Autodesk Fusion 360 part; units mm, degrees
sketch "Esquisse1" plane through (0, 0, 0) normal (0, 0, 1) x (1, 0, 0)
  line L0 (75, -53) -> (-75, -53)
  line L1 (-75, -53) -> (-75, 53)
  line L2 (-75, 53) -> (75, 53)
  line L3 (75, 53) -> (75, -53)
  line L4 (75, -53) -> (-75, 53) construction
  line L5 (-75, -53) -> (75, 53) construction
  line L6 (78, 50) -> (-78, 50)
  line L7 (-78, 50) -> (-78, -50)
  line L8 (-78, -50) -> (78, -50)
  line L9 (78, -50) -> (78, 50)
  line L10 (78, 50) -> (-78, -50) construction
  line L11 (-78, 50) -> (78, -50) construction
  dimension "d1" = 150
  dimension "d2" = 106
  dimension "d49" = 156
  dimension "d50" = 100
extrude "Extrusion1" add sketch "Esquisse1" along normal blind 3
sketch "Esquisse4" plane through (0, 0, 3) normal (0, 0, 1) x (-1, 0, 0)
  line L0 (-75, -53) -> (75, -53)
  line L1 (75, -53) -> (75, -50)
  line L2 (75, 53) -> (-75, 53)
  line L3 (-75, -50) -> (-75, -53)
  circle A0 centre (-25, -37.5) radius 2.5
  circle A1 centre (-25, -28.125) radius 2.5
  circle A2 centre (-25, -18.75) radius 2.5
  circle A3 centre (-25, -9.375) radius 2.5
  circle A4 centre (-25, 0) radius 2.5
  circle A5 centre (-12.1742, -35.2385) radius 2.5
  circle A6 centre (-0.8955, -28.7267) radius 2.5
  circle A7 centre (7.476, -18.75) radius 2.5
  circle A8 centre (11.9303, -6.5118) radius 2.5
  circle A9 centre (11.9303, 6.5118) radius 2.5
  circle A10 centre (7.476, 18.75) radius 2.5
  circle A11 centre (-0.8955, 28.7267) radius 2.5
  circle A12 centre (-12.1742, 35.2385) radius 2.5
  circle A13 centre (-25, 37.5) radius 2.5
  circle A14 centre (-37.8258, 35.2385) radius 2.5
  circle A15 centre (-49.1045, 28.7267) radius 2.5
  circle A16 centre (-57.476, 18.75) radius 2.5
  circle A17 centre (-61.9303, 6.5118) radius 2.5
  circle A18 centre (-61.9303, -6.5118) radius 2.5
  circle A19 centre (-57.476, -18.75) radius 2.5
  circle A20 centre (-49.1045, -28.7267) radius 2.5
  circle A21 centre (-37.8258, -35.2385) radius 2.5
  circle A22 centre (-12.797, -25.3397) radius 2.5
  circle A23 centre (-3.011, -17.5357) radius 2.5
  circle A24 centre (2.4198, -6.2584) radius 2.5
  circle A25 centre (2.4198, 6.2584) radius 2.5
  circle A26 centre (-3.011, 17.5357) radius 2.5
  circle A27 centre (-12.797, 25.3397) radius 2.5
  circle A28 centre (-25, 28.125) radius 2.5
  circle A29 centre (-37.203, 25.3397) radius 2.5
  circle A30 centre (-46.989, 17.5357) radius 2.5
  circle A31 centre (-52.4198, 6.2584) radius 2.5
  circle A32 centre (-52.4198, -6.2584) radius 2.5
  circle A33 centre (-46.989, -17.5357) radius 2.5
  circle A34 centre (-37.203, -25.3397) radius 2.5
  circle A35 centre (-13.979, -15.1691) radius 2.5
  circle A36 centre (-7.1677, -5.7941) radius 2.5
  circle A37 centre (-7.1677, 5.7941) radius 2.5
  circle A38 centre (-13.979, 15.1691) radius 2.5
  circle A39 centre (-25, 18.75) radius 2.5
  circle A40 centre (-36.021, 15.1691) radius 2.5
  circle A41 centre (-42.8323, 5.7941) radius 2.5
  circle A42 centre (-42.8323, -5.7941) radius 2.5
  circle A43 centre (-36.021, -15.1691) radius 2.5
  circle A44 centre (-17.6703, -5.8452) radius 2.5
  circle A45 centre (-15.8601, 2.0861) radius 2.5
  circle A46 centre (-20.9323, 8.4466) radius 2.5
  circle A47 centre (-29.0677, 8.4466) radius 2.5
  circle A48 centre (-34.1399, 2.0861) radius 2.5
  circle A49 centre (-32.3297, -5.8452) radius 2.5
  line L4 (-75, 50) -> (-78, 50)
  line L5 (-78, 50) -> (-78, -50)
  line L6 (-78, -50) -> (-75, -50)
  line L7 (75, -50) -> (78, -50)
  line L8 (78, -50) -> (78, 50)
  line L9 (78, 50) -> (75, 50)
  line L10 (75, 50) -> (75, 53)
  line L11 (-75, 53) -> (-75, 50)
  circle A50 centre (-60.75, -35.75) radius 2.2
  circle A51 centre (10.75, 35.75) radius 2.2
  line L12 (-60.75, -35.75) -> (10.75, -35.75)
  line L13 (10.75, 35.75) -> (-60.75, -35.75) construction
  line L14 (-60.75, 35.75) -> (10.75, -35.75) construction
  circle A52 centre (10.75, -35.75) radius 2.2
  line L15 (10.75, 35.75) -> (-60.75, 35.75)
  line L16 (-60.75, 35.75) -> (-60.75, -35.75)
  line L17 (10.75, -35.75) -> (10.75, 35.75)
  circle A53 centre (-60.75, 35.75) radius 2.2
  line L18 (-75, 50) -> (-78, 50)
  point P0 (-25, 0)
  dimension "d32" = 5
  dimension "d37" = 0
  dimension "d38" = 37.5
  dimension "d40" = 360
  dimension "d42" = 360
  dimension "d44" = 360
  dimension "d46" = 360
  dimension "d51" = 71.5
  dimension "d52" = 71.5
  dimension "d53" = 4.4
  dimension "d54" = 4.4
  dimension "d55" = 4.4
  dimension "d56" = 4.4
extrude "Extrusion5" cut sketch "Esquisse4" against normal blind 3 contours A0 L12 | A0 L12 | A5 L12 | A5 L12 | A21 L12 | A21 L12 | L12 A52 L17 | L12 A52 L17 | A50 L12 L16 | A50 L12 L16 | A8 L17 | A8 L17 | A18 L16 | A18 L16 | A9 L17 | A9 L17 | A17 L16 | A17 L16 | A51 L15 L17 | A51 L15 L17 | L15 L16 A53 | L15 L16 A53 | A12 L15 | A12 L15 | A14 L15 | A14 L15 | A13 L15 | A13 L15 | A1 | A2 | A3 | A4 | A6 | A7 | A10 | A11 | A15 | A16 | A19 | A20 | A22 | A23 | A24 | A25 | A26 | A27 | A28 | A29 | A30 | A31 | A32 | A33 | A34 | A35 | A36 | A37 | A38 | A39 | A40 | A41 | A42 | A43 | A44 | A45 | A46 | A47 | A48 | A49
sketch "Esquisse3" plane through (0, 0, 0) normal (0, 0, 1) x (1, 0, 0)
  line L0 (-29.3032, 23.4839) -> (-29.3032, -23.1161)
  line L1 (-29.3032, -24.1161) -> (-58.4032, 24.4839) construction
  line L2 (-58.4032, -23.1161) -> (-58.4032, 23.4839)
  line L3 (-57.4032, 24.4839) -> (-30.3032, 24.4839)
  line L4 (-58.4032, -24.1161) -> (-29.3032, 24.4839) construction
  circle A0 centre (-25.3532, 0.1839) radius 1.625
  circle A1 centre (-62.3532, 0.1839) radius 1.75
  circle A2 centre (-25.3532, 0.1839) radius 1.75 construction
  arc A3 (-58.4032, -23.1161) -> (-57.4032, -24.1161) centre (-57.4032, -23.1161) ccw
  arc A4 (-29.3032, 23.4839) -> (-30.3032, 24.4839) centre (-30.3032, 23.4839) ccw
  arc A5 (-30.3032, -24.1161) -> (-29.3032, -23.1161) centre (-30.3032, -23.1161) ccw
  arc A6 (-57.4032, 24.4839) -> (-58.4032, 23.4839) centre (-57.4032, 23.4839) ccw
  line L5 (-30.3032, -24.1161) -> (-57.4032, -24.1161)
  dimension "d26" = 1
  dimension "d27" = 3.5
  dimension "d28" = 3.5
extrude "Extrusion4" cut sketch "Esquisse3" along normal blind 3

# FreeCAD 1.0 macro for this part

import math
import FreeCAD as App
import Part
import Sketcher
Q = App.Units.Quantity

doc = App.newDocument("Part")
body = doc.addObject("PartDesign::Body", "Body")

sketch1 = doc.addObject("Sketcher::SketchObject", "Sketch")
body.addObject(sketch1)
sketch1.AttachmentSupport = (doc.XY_Plane, [""])
sketch1.MapMode = "FlatFace"
sketch1.addGeometry(Part.LineSegment(App.Vector(-75, -53, 0), App.Vector(75, -53, 0)), False)
sketch1.addGeometry(Part.LineSegment(App.Vector(75, -53, 0), App.Vector(75, -50, 0)), False)
sketch1.addGeometry(Part.LineSegment(App.Vector(75, -50, 0), App.Vector(78, -50, 0)), False)
sketch1.addGeometry(Part.LineSegment(App.Vector(78, -50, 0), App.Vector(78, 50, 0)), False)
sketch1.addGeometry(Part.LineSegment(App.Vector(78, 50, 0), App.Vector(75, 50, 0)), False)
sketch1.addGeometry(Part.LineSegment(App.Vector(75, 50, 0), App.Vector(75, 53, 0)), False)
sketch1.addGeometry(Part.LineSegment(App.Vector(75, 53, 0), App.Vector(-75, 53, 0)), False)
sketch1.addGeometry(Part.LineSegment(App.Vector(-75, 53, 0), App.Vector(-75, 50, 0)), False)
sketch1.addGeometry(Part.LineSegment(App.Vector(-75, 50, 0), App.Vector(-78, 50, 0)), False)
sketch1.addGeometry(Part.LineSegment(App.Vector(-78, 50, 0), App.Vector(-78, -50, 0)), False)
sketch1.addGeometry(Part.LineSegment(App.Vector(-78, -50, 0), App.Vector(-75, -50, 0)), False)
sketch1.addGeometry(Part.LineSegment(App.Vector(-75, -50, 0), App.Vector(-75, -53, 0)), False)
sketch1.addConstraint(Sketcher.Constraint("Coincident", 0, 2, 1, 1))
sketch1.addConstraint(Sketcher.Constraint("Coincident", 1, 2, 2, 1))
sketch1.addConstraint(Sketcher.Constraint("Coincident", 2, 2, 3, 1))
sketch1.addConstraint(Sketcher.Constraint("Coincident", 3, 2, 4, 1))
sketch1.addConstraint(Sketcher.Constraint("Coincident", 4, 2, 5, 1))
sketch1.addConstraint(Sketcher.Constraint("Coincident", 5, 2, 6, 1))
sketch1.addConstraint(Sketcher.Constraint("Coincident", 6, 2, 7, 1))
sketch1.addConstraint(Sketcher.Constraint("Coincident", 7, 2, 8, 1))
sketch1.addConstraint(Sketcher.Constraint("Coincident", 8, 2, 9, 1))
sketch1.addConstraint(Sketcher.Constraint("Coincident", 9, 2, 10, 1))
sketch1.addConstraint(Sketcher.Constraint("Coincident", 10, 2, 11, 1))
sketch1.addConstraint(Sketcher.Constraint("Coincident", 11, 2, 0, 1))
sketch1.addConstraint(Sketcher.Constraint("Horizontal", 0))
sketch1.addConstraint(Sketcher.Constraint("Vertical", 1))
sketch1.addConstraint(Sketcher.Constraint("Horizontal", 2))
sketch1.addConstraint(Sketcher.Constraint("Vertical", 3))
sketch1.addConstraint(Sketcher.Constraint("Horizontal", 4))
sketch1.addConstraint(Sketcher.Constraint("Vertical", 5))
sketch1.addConstraint(Sketcher.Constraint("Horizontal", 6))
sketch1.addConstraint(Sketcher.Constraint("Vertical", 7))
sketch1.addConstraint(Sketcher.Constraint("Horizontal", 8))
sketch1.addConstraint(Sketcher.Constraint("Vertical", 9))
sketch1.addConstraint(Sketcher.Constraint("Horizontal", 10))
sketch1.addConstraint(Sketcher.Constraint("Vertical", 11))
sketch1.addConstraint(Sketcher.Constraint("Symmetric", 0, 2, 6, 2, -1, 1))
sketch1.addConstraint(Sketcher.Constraint("Symmetric", 2, 2, 8, 2, -1, 1))
sketch1.addConstraint(Sketcher.Constraint("Symmetric", 4, 2, 10, 2, -1, 1))
sketch1.addConstraint(Sketcher.Constraint("Symmetric", 4, 2, 7, 2, -2))
sketch1.addConstraint(Sketcher.Constraint("Equal", 10, 1))
sketch1.addConstraint(Sketcher.Constraint("DistanceX", 0, 1, 0, 2, Q("150 mm")))
sketch1.addConstraint(Sketcher.Constraint("DistanceY", 3, 1, 3, 2, Q("100 mm")))
sketch1.addConstraint(Sketcher.Constraint("DistanceY", 0, 2, 5, 2, Q("106 mm")))
pad1 = doc.addObject("PartDesign::Pad", "Pad")
body.addObject(pad1)
pad1.Profile = sketch1
pad1.Length = 3

sketch2 = doc.addObject("Sketcher::SketchObject", "Sketch001")
body.addObject(sketch2)
sketch2.AttachmentSupport = (doc.XY_Plane, [""])
sketch2.MapMode = "FlatFace"
sketch2.AttachmentOffset = App.Placement(App.Vector(0, 0, 3), App.Rotation())
sketch2.addGeometry(Part.Circle(App.Vector(25, 37.5, 0), App.Vector(0, 0, 1), 2.5), False)
sketch2.addGeometry(Part.Circle(App.Vector(12.2, 35.2, 0), App.Vector(0, 0, 1), 2.5), False)
sketch2.addGeometry(Part.Circle(App.Vector(37.8, 35.2, 0), App.Vector(0, 0, 1), 2.5), False)
sketch2.addGeometry(Part.Circle(App.Vector(-10.8, 35.8, 0), App.Vector(0, 0, 1), 2.2), False)
sketch2.addGeometry(Part.Circle(App.Vector(60.8, 35.8, 0), App.Vector(0, 0, 1), 2.2), False)
sketch2.addGeometry(Part.Circle(App.Vector(-11.9, 6.5, 0), App.Vector(0, 0, 1), 2.5), False)
sketch2.addGeometry(Part.Circle(App.Vector(61.9, 6.5, 0), App.Vector(0, 0, 1), 2.5), False)
sketch2.addGeometry(Part.Circle(App.Vector(-11.9, -6.5, 0), App.Vector(0, 0, 1), 2.5), False)
sketch2.addGeometry(Part.Circle(App.Vector(61.9, -6.5, 0), App.Vector(0, 0, 1), 2.5), False)
sketch2.addGeometry(Part.Circle(App.Vector(-10.8, -35.8, 0), App.Vector(0, 0, 1), 2.2), False)
sketch2.addGeometry(Part.Circle(App.Vector(60.8, -35.8, 0), App.Vector(0, 0, 1), 2.2), False)
sketch2.addGeometry(Part.Circle(App.Vector(12.2, -35.2, 0), App.Vector(0, 0, 1), 2.5), False)
sketch2.addGeometry(Part.Circle(App.Vector(37.8, -35.2, 0), App.Vector(0, 0, 1), 2.5), False)
sketch2.addGeometry(Part.Circle(App.Vector(25, -37.5, 0), App.Vector(0, 0, 1), 2.5), False)
sketch2.addGeometry(Part.Circle(App.Vector(25, 28.1, 0), App.Vector(0, 0, 1), 2.5), False)
sketch2.addGeometry(Part.Circle(App.Vector(25, 18.8, 0), App.Vector(0, 0, 1), 2.5), False)
sketch2.addGeometry(Part.Circle(App.Vector(25, 9.4, 0), App.Vector(0, 0, 1), 2.5), False)
sketch2.addGeometry(Part.Circle(App.Vector(25, 0, 0), App.Vector(0, 0, 1), 2.5), False)
sketch2.addGeometry(Part.Circle(App.Vector(0.9, 28.7, 0), App.Vector(0, 0, 1), 2.5), False)
sketch2.addGeometry(Part.Circle(App.Vector(-7.5, 18.8, 0), App.Vector(0, 0, 1), 2.5), False)
sketch2.addGeometry(Part.Circle(App.Vector(-7.5, -18.8, 0), App.Vector(0, 0, 1), 2.5), False)
sketch2.addGeometry(Part.Circle(App.Vector(0.9, -28.7, 0), App.Vector(0, 0, 1), 2.5), False)
sketch2.addGeometry(Part.Circle(App.Vector(49.1, -28.7, 0), App.Vector(0, 0, 1), 2.5), False)
sketch2.addGeometry(Part.Circle(App.Vector(57.5, -18.8, 0), App.Vector(0, 0, 1), 2.5), False)
sketch2.addGeometry(Part.Circle(App.Vector(57.5, 18.8, 0), App.Vector(0, 0, 1), 2.5), False)
sketch2.addGeometry(Part.Circle(App.Vector(49.1, 28.7, 0), App.Vector(0, 0, 1), 2.5), False)
sketch2.addGeometry(Part.Circle(App.Vector(12.8, 25.3, 0), App.Vector(0, 0, 1), 2.5), False)
sketch2.addGeometry(Part.Circle(App.Vector(3, 17.5, 0), App.Vector(0, 0, 1), 2.5), False)
sketch2.addGeometry(Part.Circle(App.Vector(-2.4, 6.3, 0), App.Vector(0, 0, 1), 2.5), False)
sketch2.addGeometry(Part.Circle(App.Vector(-2.4, -6.3, 0), App.Vector(0, 0, 1), 2.5), False)
sketch2.addGeometry(Part.Circle(App.Vector(3, -17.5, 0), App.Vector(0, 0, 1), 2.5), False)
sketch2.addGeometry(Part.Circle(App.Vector(12.8, -25.3, 0), App.Vector(0, 0, 1), 2.5), False)
sketch2.addGeometry(Part.Circle(App.Vector(25, -28.1, 0), App.Vector(0, 0, 1), 2.5), False)
sketch2.addGeometry(Part.Circle(App.Vector(37.2, -25.3, 0), App.Vector(0, 0, 1), 2.5), False)
sketch2.addGeometry(Part.Circle(App.Vector(47, -17.5, 0), App.Vector(0, 0, 1), 2.5), False)
sketch2.addGeometry(Part.Circle(App.Vector(52.4, -6.3, 0), App.Vector(0, 0, 1), 2.5), False)
sketch2.addGeometry(Part.Circle(App.Vector(52.4, 6.3, 0), App.Vector(0, 0, 1), 2.5), False)
sketch2.addGeometry(Part.Circle(App.Vector(47, 17.5, 0), App.Vector(0, 0, 1), 2.5), False)
sketch2.addGeometry(Part.Circle(App.Vector(37.2, 25.3, 0), App.Vector(0, 0, 1), 2.5), False)
sketch2.addGeometry(Part.Circle(App.Vector(14, 15.2, 0), App.Vector(0, 0, 1), 2.5), False)
sketch2.addGeometry(Part.Circle(App.Vector(7.2, 5.8, 0), App.Vector(0, 0, 1), 2.5), False)
sketch2.addGeometry(Part.Circle(App.Vector(7.2, -5.8, 0), App.Vector(0, 0, 1), 2.5), False)
sketch2.addGeometry(Part.Circle(App.Vector(14, -15.2, 0), App.Vector(0, 0, 1), 2.5), False)
sketch2.addGeometry(Part.Circle(App.Vector(25, -18.8, 0), App.Vector(0, 0, 1), 2.5), False)
sketch2.addGeometry(Part.Circle(App.Vector(36, -15.2, 0), App.Vector(0, 0, 1), 2.5), False)
sketch2.addGeometry(Part.Circle(App.Vector(42.8, -5.8, 0), App.Vector(0, 0, 1), 2.5), False)
sketch2.addGeometry(Part.Circle(App.Vector(42.8, 5.8, 0), App.Vector(0, 0, 1), 2.5), False)
sketch2.addGeometry(Part.Circle(App.Vector(36, 15.2, 0), App.Vector(0, 0, 1), 2.5), False)
sketch2.addGeometry(Part.Circle(App.Vector(17.7, 5.8, 0), App.Vector(0, 0, 1), 2.5), False)
sketch2.addGeometry(Part.Circle(App.Vector(15.9, -2.1, 0), App.Vector(0, 0, 1), 2.5), False)
sketch2.addGeometry(Part.Circle(App.Vector(20.9, -8.4, 0), App.Vector(0, 0, 1), 2.5), False)
sketch2.addGeometry(Part.Circle(App.Vector(29.1, -8.4, 0), App.Vector(0, 0, 1), 2.5), False)
sketch2.addGeometry(Part.Circle(App.Vector(34.1, -2.1, 0), App.Vector(0, 0, 1), 2.5), False)
sketch2.addGeometry(Part.Circle(App.Vector(32.3, 5.8, 0), App.Vector(0, 0, 1), 2.5), False)
sketch2.addConstraint(Sketcher.Constraint("Equal", 0, 1))
sketch2.addConstraint(Sketcher.Constraint("Equal", 1, 2))
sketch2.addConstraint(Sketcher.Constraint("Equal", 3, 4))
sketch2.addConstraint(Sketcher.Constraint("Equal", 2, 5))
sketch2.addConstraint(Sketcher.Constraint("Equal", 5, 6))
sketch2.addConstraint(Sketcher.Constraint("Equal", 6, 7))
sketch2.addConstraint(Sketcher.Constraint("Equal", 7, 8))
sketch2.addConstraint(Sketcher.Constraint("Equal", 4, 9))
sketch2.addConstraint(Sketcher.Constraint("Equal", 9, 10))
sketch2.addConstraint(Sketcher.Constraint("Equal", 8, 11))
sketch2.addConstraint(Sketcher.Constraint("Equal", 11, 12))
sketch2.addConstraint(Sketcher.Constraint("Equal", 12, 13))
sketch2.addConstraint(Sketcher.Constraint("Equal", 13, 14))
sketch2.addConstraint(Sketcher.Constraint("Equal", 14, 15))
sketch2.addConstraint(Sketcher.Constraint("Equal", 15, 16))
sketch2.addConstraint(Sketcher.Constraint("Equal", 16, 17))
sketch2.addConstraint(Sketcher.Constraint("Equal", 17, 18))
sketch2.addConstraint(Sketcher.Constraint("Equal", 18, 19))
sketch2.addConstraint(Sketcher.Constraint("Equal", 19, 20))
sketch2.addConstraint(Sketcher.Constraint("Equal", 20, 21))
sketch2.addConstraint(Sketcher.Constraint("Equal", 21, 22))
sketch2.addConstraint(Sketcher.Constraint("Equal", 22, 23))
sketch2.addConstraint(Sketcher.Constraint("Equal", 23, 24))
sketch2.addConstraint(Sketcher.Constraint("Equal", 24, 25))
sketch2.addConstraint(Sketcher.Constraint("Equal", 25, 26))
sketch2.addConstraint(Sketcher.Constraint("Equal", 26, 27))
sketch2.addConstraint(Sketcher.Constraint("Equal", 27, 28))
sketch2.addConstraint(Sketcher.Constraint("Equal", 28, 29))
sketch2.addConstraint(Sketcher.Constraint("Equal", 29, 30))
sketch2.addConstraint(Sketcher.Constraint("Equal", 30, 31))
sketch2.addConstraint(Sketcher.Constraint("Equal", 31, 32))
sketch2.addConstraint(Sketcher.Constraint("Equal", 32, 33))
sketch2.addConstraint(Sketcher.Constraint("Equal", 33, 34))
sketch2.addConstraint(Sketcher.Constraint("Equal", 34, 35))
sketch2.addConstraint(Sketcher.Constraint("Equal", 35, 36))
sketch2.addConstraint(Sketcher.Constraint("Equal", 36, 37))
sketch2.addConstraint(Sketcher.Constraint("Equal", 37, 38))
sketch2.addConstraint(Sketcher.Constraint("Equal", 38, 39))
sketch2.addConstraint(Sketcher.Constraint("Equal", 39, 40))
sketch2.addConstraint(Sketcher.Constraint("Equal", 40, 41))
sketch2.addConstraint(Sketcher.Constraint("Equal", 41, 42))
sketch2.addConstraint(Sketcher.Constraint("Equal", 42, 43))
sketch2.addConstraint(Sketcher.Constraint("Equal", 43, 44))
sketch2.addConstraint(Sketcher.Constraint("Equal", 44, 45))
sketch2.addConstraint(Sketcher.Constraint("Equal", 45, 46))
sketch2.addConstraint(Sketcher.Constraint("Equal", 46, 47))
sketch2.addConstraint(Sketcher.Constraint("Equal", 47, 48))
sketch2.addConstraint(Sketcher.Constraint("Equal", 48, 49))
sketch2.addConstraint(Sketcher.Constraint("Equal", 49, 50))
sketch2.addConstraint(Sketcher.Constraint("Equal", 50, 51))
sketch2.addConstraint(Sketcher.Constraint("Equal", 51, 52))
sketch2.addConstraint(Sketcher.Constraint("Equal", 52, 53))
sketch2.addConstraint(Sketcher.Constraint("Symmetric", 5, 3, 7, 3, -1))
sketch2.addConstraint(Sketcher.Constraint("Symmetric", 6, 3, 8, 3, -1))
sketch2.addConstraint(Sketcher.Constraint("Symmetric", 3, 3, 9, 3, -1))
sketch2.addConstraint(Sketcher.Constraint("Symmetric", 4, 3, 10, 3, -1))
sketch2.addConstraint(Sketcher.Constraint("Symmetric", 1, 3, 11, 3, -1))
sketch2.addConstraint(Sketcher.Constraint("Symmetric", 2, 3, 12, 3, -1))
sketch2.addConstraint(Sketcher.Constraint("Symmetric", 0, 3, 13, 3, -1))
sketch2.addConstraint(Sketcher.Constraint("Symmetric", 19, 3, 20, 3, -1))
sketch2.addConstraint(Sketcher.Constraint("Symmetric", 18, 3, 21, 3, -1))
sketch2.addConstraint(Sketcher.Constraint("Symmetric", 23, 3, 24, 3, -1))
sketch2.addConstraint(Sketcher.Constraint("Symmetric", 22, 3, 25, 3, -1))
sketch2.addConstraint(Sketcher.Constraint("Symmetric", 28, 3, 29, 3, -1))
sketch2.addConstraint(Sketcher.Constraint("Symmetric", 27, 3, 30, 3, -1))
sketch2.addConstraint(Sketcher.Constraint("Symmetric", 26, 3, 31, 3, -1))
sketch2.addConstraint(Sketcher.Constraint("Symmetric", 14, 3, 32, 3, -1))
sketch2.addConstraint(Sketcher.Constraint("Symmetric", 35, 3, 36, 3, -1))
sketch2.addConstraint(Sketcher.Constraint("Symmetric", 34, 3, 37, 3, -1))
sketch2.addConstraint(Sketcher.Constraint("Symmetric", 33, 3, 38, 3, -1))
sketch2.addConstraint(Sketcher.Constraint("Symmetric", 40, 3, 41, 3, -1))
sketch2.addConstraint(Sketcher.Constraint("Symmetric", 39, 3, 42, 3, -1))
sketch2.addConstraint(Sketcher.Constraint("Symmetric", 15, 3, 43, 3, -1))
sketch2.addConstraint(Sketcher.Constraint("Symmetric", 45, 3, 46, 3, -1))
sketch2.addConstraint(Sketcher.Constraint("Symmetric", 44, 3, 47, 3, -1))
sketch2.addConstraint(Sketcher.Constraint("PointOnObject", 17, 3, -1))
sketch2.addConstraint(Sketcher.Constraint("Horizontal", 1, 3, 2, 3))
sketch2.addConstraint(Sketcher.Constraint("Horizontal", 3, 3, 4, 3))
sketch2.addConstraint(Sketcher.Constraint("Horizontal", 5, 3, 6, 3))
sketch2.addConstraint(Sketcher.Constraint("Horizontal", 15, 3, 19, 3))
sketch2.addConstraint(Sketcher.Constraint("Horizontal", 21, 3, 22, 3))
sketch2.addConstraint(Sketcher.Constraint("Horizontal", 20, 3, 23, 3))
sketch2.addConstraint(Sketcher.Constraint("Horizontal", 31, 3, 33, 3))
sketch2.addConstraint(Sketcher.Constraint("Horizontal", 30, 3, 34, 3))
sketch2.addConstraint(Sketcher.Constraint("Horizontal", 29, 3, 35, 3))
sketch2.addConstraint(Sketcher.Constraint("Horizontal", 42, 3, 44, 3))
sketch2.addConstraint(Sketcher.Constraint("Horizontal", 41, 3, 45, 3))
sketch2.addConstraint(Sketcher.Constraint("Horizontal", 50, 3, 51, 3))
sketch2.addConstraint(Sketcher.Constraint("Horizontal", 49, 3, 52, 3))
sketch2.addConstraint(Sketcher.Constraint("Horizontal", 48, 3, 53, 3))
sketch2.addConstraint(Sketcher.Constraint("Vertical", 13, 3, 14, 3))
sketch2.addConstraint(Sketcher.Constraint("Vertical", 14, 3, 15, 3))
sketch2.addConstraint(Sketcher.Constraint("Vertical", 15, 3, 16, 3))
sketch2.addConstraint(Sketcher.Constraint("Vertical", 16, 3, 17, 3))
sketch2.addConstraint(Sketcher.Constraint("Diameter", 0, Q("5 mm")))
sketch2.addConstraint(Sketcher.Constraint("Diameter", 3, Q("4.4 mm")))
sketch2.addConstraint(Sketcher.Constraint("DistanceY", -1, 1, 0, 3, Q("37.5 mm")))
sketch2.addConstraint(Sketcher.Constraint("DistanceX", 3, 3, 4, 3, Q("71.5 mm")))
sketch2.addConstraint(Sketcher.Constraint("DistanceY", 9, 3, 3, 3, Q("71.5 mm")))
sketch2.addConstraint(Sketcher.Constraint("DistanceY", 20, 3, 19, 3, Q("37.5 mm")))
sketch2.addConstraint(Sketcher.Constraint("DistanceX", -1, 1, 0, 3, Q("25 mm")))
sketch2.addConstraint(Sketcher.Constraint("DistanceX", 3, 3, -1, 1, Q("10.75 mm")))
sketch2.addConstraint(Sketcher.Constraint("DistanceX", -1, 1, 49, 3, Q("15.86 mm")))
sketch2.addConstraint(Sketcher.Constraint("DistanceX", -1, 1, 52, 3, Q("34.14 mm")))
sketch2.addConstraint(Sketcher.Constraint("DistanceY", 16, 3, 14, 3, Q("18.75 mm")))
sketch2.addConstraint(Sketcher.Constraint("DistanceY", -1, 1, 14, 3, Q("28.125 mm")))
sketch2.addConstraint(Sketcher.Constraint("DistanceX", 19, 3, -1, 1, Q("7.476 mm")))
sketch2.addConstraint(Sketcher.Constraint("DistanceX", -1, 1, 23, 3, Q("57.476 mm")))
sketch2.addConstraint(Sketcher.Constraint("DistanceX", -1, 1, 26, 3, Q("12.797 mm")))
sketch2.addConstraint(Sketcher.Constraint("DistanceX", -1, 1, 27, 3, Q("3.011 mm")))
sketch2.addConstraint(Sketcher.Constraint("DistanceX", -1, 1, 33, 3, Q("37.203 mm")))
sketch2.addConstraint(Sketcher.Constraint("DistanceX", -1, 1, 34, 3, Q("46.989 mm")))
sketch2.addConstraint(Sketcher.Constraint("DistanceX", -1, 1, 39, 3, Q("13.979 mm")))
sketch2.addConstraint(Sketcher.Constraint("DistanceY", -1, 1, 39, 3, Q("15.169 mm")))
sketch2.addConstraint(Sketcher.Constraint("DistanceY", -1, 1, 40, 3, Q("5.794 mm")))
sketch2.addConstraint(Sketcher.Constraint("DistanceX", -1, 1, 44, 3, Q("36.021 mm")))
sketch2.addConstraint(Sketcher.Constraint("DistanceY", 49, 3, -1, 1, Q("2.086 mm")))
sketch2.addConstraint(Sketcher.Constraint("DistanceX", 5, 3, 2, 3, Q("49.756 mm")))
sketch2.addConstraint(Sketcher.Constraint("DistanceX", 1, 3, 6, 3, Q("49.756 mm")))
sketch2.addConstraint(Sketcher.Constraint("DistanceY", 5, 3, 18, 3, Q("22.215 mm")))
sketch2.addConstraint(Sketcher.Constraint("DistanceY", 26, 3, 18, 3, Q("3.387 mm")))
sketch2.addConstraint(Sketcher.Constraint("DistanceY", 27, 3, 18, 3, Q("11.191 mm")))
sketch2.addConstraint(Sketcher.Constraint("DistanceY", 48, 3, 39, 3, Q("9.324 mm")))
sketch2.addConstraint(Sketcher.Constraint("DistanceX", -1, 1, 1, 3, Q("12.1742 mm")))
sketch2.addConstraint(Sketcher.Constraint("DistanceY", -1, 1, 1, 3, Q("35.2385 mm")))
sketch2.addConstraint(Sketcher.Constraint("DistanceX", -1, 1, 2, 3, Q("37.8258 mm")))
sketch2.addConstraint(Sketcher.Constraint("DistanceY", -1, 1, 5, 3, Q("6.5118 mm")))
sketch2.addConstraint(Sketcher.Constraint("DistanceX", -1, 1, 18, 3, Q("0.8955 mm")))
sketch2.addConstraint(Sketcher.Constraint("DistanceX", -1, 1, 22, 3, Q("49.1045 mm")))
sketch2.addConstraint(Sketcher.Constraint("DistanceX", 28, 3, -1, 1, Q("2.4198 mm")))
sketch2.addConstraint(Sketcher.Constraint("DistanceY", -1, 1, 28, 3, Q("6.2584 mm")))
sketch2.addConstraint(Sketcher.Constraint("DistanceX", -1, 1, 35, 3, Q("52.4198 mm")))
sketch2.addConstraint(Sketcher.Constraint("DistanceX", -1, 1, 40, 3, Q("7.1677 mm")))
sketch2.addConstraint(Sketcher.Constraint("DistanceX", -1, 1, 45, 3, Q("42.8323 mm")))
sketch2.addConstraint(Sketcher.Constraint("DistanceX", -1, 1, 48, 3, Q("17.6703 mm")))
sketch2.addConstraint(Sketcher.Constraint("DistanceX", -1, 1, 50, 3, Q("20.9323 mm")))
sketch2.addConstraint(Sketcher.Constraint("DistanceY", 50, 3, -1, 1, Q("8.4466 mm")))
sketch2.addConstraint(Sketcher.Constraint("DistanceX", -1, 1, 51, 3, Q("29.0677 mm")))
sketch2.addConstraint(Sketcher.Constraint("DistanceX", -1, 1, 53, 3, Q("32.3297 mm")))
pocket1 = doc.addObject("PartDesign::Pocket", "Pocket")
body.addObject(pocket1)
pocket1.Profile = sketch2
pocket1.Length = 3

sketch3 = doc.addObject("Sketcher::SketchObject", "Sketch002")
body.addObject(sketch3)
sketch3.AttachmentSupport = (doc.XY_Plane, [""])
sketch3.MapMode = "FlatFace"
sketch3.addGeometry(Part.LineSegment(App.Vector(-29.3, -23.1, 0), App.Vector(-29.3, 23.5, 0)), False)
sketch3.addGeometry(Part.ArcOfCircle(Part.Circle(App.Vector(-30.3, 23.5, 0), App.Vector(0, 0, 1), 1), math.radians(0), math.radians(90)), False)
sketch3.addGeometry(Part.LineSegment(App.Vector(-30.3, 24.5, 0), App.Vector(-57.4, 24.5, 0)), False)
sketch3.addGeometry(Part.ArcOfCircle(Part.Circle(App.Vector(-57.4, 23.5, 0), App.Vector(0, 0, 1), 1), math.radians(90), math.radians(180)), False)
sketch3.addGeometry(Part.LineSegment(App.Vector(-58.4, 23.5, 0), App.Vector(-58.4, -23.1, 0)), False)
sketch3.addGeometry(Part.ArcOfCircle(Part.Circle(App.Vector(-57.4, -23.1, 0), App.Vector(0, 0, 1), 1), math.radians(180), math.radians(270)), False)
sketch3.addGeometry(Part.LineSegment(App.Vector(-57.4, -24.1, 0), App.Vector(-30.3, -24.1, 0)), False)
sketch3.addGeometry(Part.ArcOfCircle(Part.Circle(App.Vector(-30.3, -23.1, 0), App.Vector(0, 0, 1), 1), math.radians(-90), math.radians(0)), False)
sketch3.addGeometry(Part.Circle(App.Vector(-25.4, 0.2, 0), App.Vector(0, 0, 1), 1.6), False)
sketch3.addGeometry(Part.Circle(App.Vector(-62.4, 0.2, 0), App.Vector(0, 0, 1), 1.8), False)
sketch3.addConstraint(Sketcher.Constraint("Tangent", 0, 2, 1, 1))
sketch3.addConstraint(Sketcher.Constraint("Tangent", 1, 2, 2, 1))
sketch3.addConstraint(Sketcher.Constraint("Tangent", 2, 2, 3, 1))
sketch3.addConstraint(Sketcher.Constraint("Tangent", 3, 2, 4, 1))
sketch3.addConstraint(Sketcher.Constraint("Tangent", 4, 2, 5, 1))
sketch3.addConstraint(Sketcher.Constraint("Tangent", 5, 2, 6, 1))
sketch3.addConstraint(Sketcher.Constraint("Tangent", 6, 2, 7, 1))
sketch3.addConstraint(Sketcher.Constraint("Tangent", 7, 2, 0, 1))
sketch3.addConstraint(Sketcher.Constraint("Vertical", 0))
sketch3.addConstraint(Sketcher.Constraint("Horizontal", 2))
sketch3.addConstraint(Sketcher.Constraint("Vertical", 4))
sketch3.addConstraint(Sketcher.Constraint("Horizontal", 6))
sketch3.addConstraint(Sketcher.Constraint("Equal", 1, 3))
sketch3.addConstraint(Sketcher.Constraint("Equal", 3, 5))
sketch3.addConstraint(Sketcher.Constraint("Equal", 5, 7))
sketch3.addConstraint(Sketcher.Constraint("Horizontal", 8, 3, 9, 3))
sketch3.addConstraint(Sketcher.Constraint("Radius", 1, Q("1 mm")))
sketch3.addConstraint(Sketcher.Constraint("Diameter", 9, Q("3.5 mm")))
sketch3.addConstraint(Sketcher.Constraint("Diameter", 8, Q("3.25 mm")))
sketch3.addConstraint(Sketcher.Constraint("DistanceX", 2, 2, 2, 1, Q("27.1 mm")))
sketch3.addConstraint(Sketcher.Constraint("DistanceY", 0, 1, 0, 2, Q("46.6 mm")))
sketch3.addConstraint(Sketcher.Constraint("DistanceX", 9, 3, 8, 3, Q("37 mm")))
sketch3.addConstraint(Sketcher.Constraint("DistanceY", 8, 3, 1, 3, Q("23.3 mm")))
sketch3.addConstraint(Sketcher.Constraint("DistanceX", 1, 3, 8, 3, Q("4.95 mm")))
sketch3.addConstraint(Sketcher.Constraint("DistanceY", -1, 1, 1, 3, Q("23.484 mm")))
sketch3.addConstraint(Sketcher.Constraint("DistanceX", 1, 3, -1, 1, Q("30.3032 mm")))
pocket2 = doc.addObject("PartDesign::Pocket", "Pocket001")
body.addObject(pocket2)
pocket2.Profile = sketch3
pocket2.Length = 3
pocket2.Reversed = True

doc.recompute()
